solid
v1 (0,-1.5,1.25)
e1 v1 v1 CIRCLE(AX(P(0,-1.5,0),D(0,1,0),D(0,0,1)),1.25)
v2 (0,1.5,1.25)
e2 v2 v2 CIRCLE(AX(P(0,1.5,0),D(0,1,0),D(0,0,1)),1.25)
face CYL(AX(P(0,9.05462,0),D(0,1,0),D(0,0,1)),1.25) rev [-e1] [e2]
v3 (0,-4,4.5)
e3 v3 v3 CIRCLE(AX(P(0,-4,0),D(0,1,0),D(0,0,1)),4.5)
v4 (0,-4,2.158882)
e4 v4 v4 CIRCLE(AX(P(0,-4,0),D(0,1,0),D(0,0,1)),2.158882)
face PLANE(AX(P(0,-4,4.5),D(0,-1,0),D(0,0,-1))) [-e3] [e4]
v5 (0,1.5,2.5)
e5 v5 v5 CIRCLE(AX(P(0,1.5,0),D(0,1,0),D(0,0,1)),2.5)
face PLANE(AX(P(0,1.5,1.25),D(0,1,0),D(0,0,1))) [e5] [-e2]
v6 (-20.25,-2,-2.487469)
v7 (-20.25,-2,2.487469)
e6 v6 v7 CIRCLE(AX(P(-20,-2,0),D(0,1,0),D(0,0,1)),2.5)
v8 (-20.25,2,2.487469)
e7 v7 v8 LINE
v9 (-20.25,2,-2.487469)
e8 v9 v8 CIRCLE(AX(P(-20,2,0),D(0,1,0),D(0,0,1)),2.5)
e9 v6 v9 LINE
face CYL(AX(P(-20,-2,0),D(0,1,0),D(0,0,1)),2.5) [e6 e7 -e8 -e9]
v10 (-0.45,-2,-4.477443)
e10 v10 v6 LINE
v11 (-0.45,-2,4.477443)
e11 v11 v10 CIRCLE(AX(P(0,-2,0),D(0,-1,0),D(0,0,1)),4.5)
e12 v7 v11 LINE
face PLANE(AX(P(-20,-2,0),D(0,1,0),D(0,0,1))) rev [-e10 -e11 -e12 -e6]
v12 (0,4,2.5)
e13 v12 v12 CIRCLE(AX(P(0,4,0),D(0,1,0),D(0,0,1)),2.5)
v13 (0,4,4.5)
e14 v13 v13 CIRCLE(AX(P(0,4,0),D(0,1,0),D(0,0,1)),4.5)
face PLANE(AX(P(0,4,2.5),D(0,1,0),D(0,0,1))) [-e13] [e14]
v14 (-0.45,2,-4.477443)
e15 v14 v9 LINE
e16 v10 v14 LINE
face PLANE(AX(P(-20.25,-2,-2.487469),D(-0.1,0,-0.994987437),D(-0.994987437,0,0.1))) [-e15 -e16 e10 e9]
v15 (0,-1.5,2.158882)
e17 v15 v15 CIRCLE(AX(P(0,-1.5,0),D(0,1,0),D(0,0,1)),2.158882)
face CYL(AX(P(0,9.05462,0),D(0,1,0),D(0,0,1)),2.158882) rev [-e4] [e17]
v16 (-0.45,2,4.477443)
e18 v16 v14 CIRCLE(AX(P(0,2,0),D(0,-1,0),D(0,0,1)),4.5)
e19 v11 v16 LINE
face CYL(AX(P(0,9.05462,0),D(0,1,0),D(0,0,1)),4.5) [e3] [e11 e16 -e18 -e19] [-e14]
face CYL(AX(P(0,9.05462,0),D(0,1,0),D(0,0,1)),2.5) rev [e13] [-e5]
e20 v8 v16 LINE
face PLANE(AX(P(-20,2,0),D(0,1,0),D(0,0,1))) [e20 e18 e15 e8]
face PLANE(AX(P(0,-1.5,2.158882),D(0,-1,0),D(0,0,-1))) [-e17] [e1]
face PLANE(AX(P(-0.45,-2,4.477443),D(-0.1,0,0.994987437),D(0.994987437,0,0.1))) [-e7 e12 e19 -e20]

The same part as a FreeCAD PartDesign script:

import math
import FreeCAD as App
import Part
import Sketcher

V = App.Vector

doc = App.newDocument("Part")
body = doc.addObject("PartDesign::Body", "Body")

sketch1 = body.newObject("Sketcher::SketchObject", "Sketch")
sketch1.AttachmentSupport = (doc.getObject("YZ_Plane"), [""])
sketch1.MapMode = "FlatFace"
sketch1.addGeometry(Part.LineSegment(V(4, 4.5, 0), V(-4, 4.5, 0)), False)
sketch1.addGeometry(Part.LineSegment(V(-4, 4.5, 0), V(-4, 2.2, 0)), False)
sketch1.addGeometry(Part.LineSegment(V(-4, 2.2, 0), V(-1.5, 2.2, 0)), False)
sketch1.addGeometry(Part.LineSegment(V(-1.5, 2.2, 0), V(-1.5, 1.2, 0)), False)
sketch1.addGeometry(Part.LineSegment(V(-1.5, 1.2, 0), V(1.5, 1.2, 0)), False)
sketch1.addGeometry(Part.LineSegment(V(1.5, 1.2, 0), V(1.5, 2.5, 0)), False)
sketch1.addGeometry(Part.LineSegment(V(1.5, 2.5, 0), V(4, 2.5, 0)), False)
sketch1.addGeometry(Part.LineSegment(V(4, 2.5, 0), V(4, 4.5, 0)), False)
sketch1.addConstraint(Sketcher.Constraint("Coincident", 0, 2, 1, 1))
sketch1.addConstraint(Sketcher.Constraint("Coincident", 1, 2, 2, 1))
sketch1.addConstraint(Sketcher.Constraint("Coincident", 2, 2, 3, 1))
sketch1.addConstraint(Sketcher.Constraint("Coincident", 3, 2, 4, 1))
sketch1.addConstraint(Sketcher.Constraint("Coincident", 4, 2, 5, 1))
sketch1.addConstraint(Sketcher.Constraint("Coincident", 5, 2, 6, 1))
sketch1.addConstraint(Sketcher.Constraint("Coincident", 6, 2, 7, 1))
sketch1.addConstraint(Sketcher.Constraint("Coincident", 7, 2, 0, 1))
sketch1.addConstraint(Sketcher.Constraint("Horizontal", 0))
sketch1.addConstraint(Sketcher.Constraint("Vertical", 1))
sketch1.addConstraint(Sketcher.Constraint("Horizontal", 2))
sketch1.addConstraint(Sketcher.Constraint("Vertical", 3))
sketch1.addConstraint(Sketcher.Constraint("Horizontal", 4))
sketch1.addConstraint(Sketcher.Constraint("Vertical", 5))
sketch1.addConstraint(Sketcher.Constraint("Horizontal", 6))
sketch1.addConstraint(Sketcher.Constraint("Vertical", 7))
sketch1.addConstraint(Sketcher.Constraint("Equal", 2, 6))
sketch1.addConstraint(Sketcher.Constraint("DistanceX", 0, 2, 0, 1, 8.0))
sketch1.addConstraint(Sketcher.Constraint("DistanceX", 4, 1, 4, 2, 3.0))
sketch1.addConstraint(Sketcher.Constraint("DistanceY", 7, 1, 7, 2, 2.0))
sketch1.addConstraint(Sketcher.Constraint("DistanceX", 0, 2, -1, 1, 4.0))
sketch1.addConstraint(Sketcher.Constraint("DistanceY", 5, 1, 5, 2, 1.25))
sketch1.addConstraint(Sketcher.Constraint("DistanceY", -1, 1, 0, 2, 4.5))
sketch1.addConstraint(Sketcher.Constraint("DistanceY", 1, 2, 1, 1, 2.341118))
revolution = body.newObject("PartDesign::Revolution", "Revolution")
revolution.Profile = sketch1
revolution.ReferenceAxis = (sketch1, ["H_Axis"])
revolution.Angle = 360

sketch2 = body.newObject("Sketcher::SketchObject", "Sketch001")
sketch2.AttachmentSupport = (doc.getObject("XZ_Plane"), [""])
sketch2.MapMode = "FlatFace"
sketch2.addGeometry(Part.LineSegment(V(-0.5, -4.5, 0), V(-20.2, -2.5, 0)), False)
sketch2.addGeometry(Part.ArcOfCircle(Part.Circle(V(-20, 0, 0), V(0, 0, 1), 2.5), math.radians(96), math.radians(264)), False)
sketch2.addGeometry(Part.LineSegment(V(-20.2, 2.5, 0), V(-0.5, 4.5, 0)), False)
sketch2.addGeometry(Part.ArcOfCircle(Part.Circle(V(0, 0, 0), V(0, 0, 1), 4.5), math.radians(96), math.radians(264)), False)
sketch2.addConstraint(Sketcher.Constraint("Tangent", 0, 2, 1, 2))
sketch2.addConstraint(Sketcher.Constraint("Tangent", 1, 1, 2, 1))
sketch2.addConstraint(Sketcher.Constraint("Tangent", 2, 2, 3, 1))
sketch2.addConstraint(Sketcher.Constraint("Tangent", 3, 2, 0, 1))
sketch2.addConstraint(Sketcher.Constraint("Coincident", 3, 3, -1, 1))
sketch2.addConstraint(Sketcher.Constraint("PointOnObject", 1, 3, -1))
sketch2.addConstraint(Sketcher.Constraint("Radius", 1, 2.5))
sketch2.addConstraint(Sketcher.Constraint("Radius", 3, 4.5))
sketch2.addConstraint(Sketcher.Constraint("DistanceX", 1, 3, -1, 1, 20.0))
pad1 = body.newObject("PartDesign::Pad", "Pad")
pad1.Profile = sketch2
pad1.Type = "TwoLengths"
pad1.Length = 2
pad1.Length2 = 2
pad1.Reversed = True

doc.recompute()
